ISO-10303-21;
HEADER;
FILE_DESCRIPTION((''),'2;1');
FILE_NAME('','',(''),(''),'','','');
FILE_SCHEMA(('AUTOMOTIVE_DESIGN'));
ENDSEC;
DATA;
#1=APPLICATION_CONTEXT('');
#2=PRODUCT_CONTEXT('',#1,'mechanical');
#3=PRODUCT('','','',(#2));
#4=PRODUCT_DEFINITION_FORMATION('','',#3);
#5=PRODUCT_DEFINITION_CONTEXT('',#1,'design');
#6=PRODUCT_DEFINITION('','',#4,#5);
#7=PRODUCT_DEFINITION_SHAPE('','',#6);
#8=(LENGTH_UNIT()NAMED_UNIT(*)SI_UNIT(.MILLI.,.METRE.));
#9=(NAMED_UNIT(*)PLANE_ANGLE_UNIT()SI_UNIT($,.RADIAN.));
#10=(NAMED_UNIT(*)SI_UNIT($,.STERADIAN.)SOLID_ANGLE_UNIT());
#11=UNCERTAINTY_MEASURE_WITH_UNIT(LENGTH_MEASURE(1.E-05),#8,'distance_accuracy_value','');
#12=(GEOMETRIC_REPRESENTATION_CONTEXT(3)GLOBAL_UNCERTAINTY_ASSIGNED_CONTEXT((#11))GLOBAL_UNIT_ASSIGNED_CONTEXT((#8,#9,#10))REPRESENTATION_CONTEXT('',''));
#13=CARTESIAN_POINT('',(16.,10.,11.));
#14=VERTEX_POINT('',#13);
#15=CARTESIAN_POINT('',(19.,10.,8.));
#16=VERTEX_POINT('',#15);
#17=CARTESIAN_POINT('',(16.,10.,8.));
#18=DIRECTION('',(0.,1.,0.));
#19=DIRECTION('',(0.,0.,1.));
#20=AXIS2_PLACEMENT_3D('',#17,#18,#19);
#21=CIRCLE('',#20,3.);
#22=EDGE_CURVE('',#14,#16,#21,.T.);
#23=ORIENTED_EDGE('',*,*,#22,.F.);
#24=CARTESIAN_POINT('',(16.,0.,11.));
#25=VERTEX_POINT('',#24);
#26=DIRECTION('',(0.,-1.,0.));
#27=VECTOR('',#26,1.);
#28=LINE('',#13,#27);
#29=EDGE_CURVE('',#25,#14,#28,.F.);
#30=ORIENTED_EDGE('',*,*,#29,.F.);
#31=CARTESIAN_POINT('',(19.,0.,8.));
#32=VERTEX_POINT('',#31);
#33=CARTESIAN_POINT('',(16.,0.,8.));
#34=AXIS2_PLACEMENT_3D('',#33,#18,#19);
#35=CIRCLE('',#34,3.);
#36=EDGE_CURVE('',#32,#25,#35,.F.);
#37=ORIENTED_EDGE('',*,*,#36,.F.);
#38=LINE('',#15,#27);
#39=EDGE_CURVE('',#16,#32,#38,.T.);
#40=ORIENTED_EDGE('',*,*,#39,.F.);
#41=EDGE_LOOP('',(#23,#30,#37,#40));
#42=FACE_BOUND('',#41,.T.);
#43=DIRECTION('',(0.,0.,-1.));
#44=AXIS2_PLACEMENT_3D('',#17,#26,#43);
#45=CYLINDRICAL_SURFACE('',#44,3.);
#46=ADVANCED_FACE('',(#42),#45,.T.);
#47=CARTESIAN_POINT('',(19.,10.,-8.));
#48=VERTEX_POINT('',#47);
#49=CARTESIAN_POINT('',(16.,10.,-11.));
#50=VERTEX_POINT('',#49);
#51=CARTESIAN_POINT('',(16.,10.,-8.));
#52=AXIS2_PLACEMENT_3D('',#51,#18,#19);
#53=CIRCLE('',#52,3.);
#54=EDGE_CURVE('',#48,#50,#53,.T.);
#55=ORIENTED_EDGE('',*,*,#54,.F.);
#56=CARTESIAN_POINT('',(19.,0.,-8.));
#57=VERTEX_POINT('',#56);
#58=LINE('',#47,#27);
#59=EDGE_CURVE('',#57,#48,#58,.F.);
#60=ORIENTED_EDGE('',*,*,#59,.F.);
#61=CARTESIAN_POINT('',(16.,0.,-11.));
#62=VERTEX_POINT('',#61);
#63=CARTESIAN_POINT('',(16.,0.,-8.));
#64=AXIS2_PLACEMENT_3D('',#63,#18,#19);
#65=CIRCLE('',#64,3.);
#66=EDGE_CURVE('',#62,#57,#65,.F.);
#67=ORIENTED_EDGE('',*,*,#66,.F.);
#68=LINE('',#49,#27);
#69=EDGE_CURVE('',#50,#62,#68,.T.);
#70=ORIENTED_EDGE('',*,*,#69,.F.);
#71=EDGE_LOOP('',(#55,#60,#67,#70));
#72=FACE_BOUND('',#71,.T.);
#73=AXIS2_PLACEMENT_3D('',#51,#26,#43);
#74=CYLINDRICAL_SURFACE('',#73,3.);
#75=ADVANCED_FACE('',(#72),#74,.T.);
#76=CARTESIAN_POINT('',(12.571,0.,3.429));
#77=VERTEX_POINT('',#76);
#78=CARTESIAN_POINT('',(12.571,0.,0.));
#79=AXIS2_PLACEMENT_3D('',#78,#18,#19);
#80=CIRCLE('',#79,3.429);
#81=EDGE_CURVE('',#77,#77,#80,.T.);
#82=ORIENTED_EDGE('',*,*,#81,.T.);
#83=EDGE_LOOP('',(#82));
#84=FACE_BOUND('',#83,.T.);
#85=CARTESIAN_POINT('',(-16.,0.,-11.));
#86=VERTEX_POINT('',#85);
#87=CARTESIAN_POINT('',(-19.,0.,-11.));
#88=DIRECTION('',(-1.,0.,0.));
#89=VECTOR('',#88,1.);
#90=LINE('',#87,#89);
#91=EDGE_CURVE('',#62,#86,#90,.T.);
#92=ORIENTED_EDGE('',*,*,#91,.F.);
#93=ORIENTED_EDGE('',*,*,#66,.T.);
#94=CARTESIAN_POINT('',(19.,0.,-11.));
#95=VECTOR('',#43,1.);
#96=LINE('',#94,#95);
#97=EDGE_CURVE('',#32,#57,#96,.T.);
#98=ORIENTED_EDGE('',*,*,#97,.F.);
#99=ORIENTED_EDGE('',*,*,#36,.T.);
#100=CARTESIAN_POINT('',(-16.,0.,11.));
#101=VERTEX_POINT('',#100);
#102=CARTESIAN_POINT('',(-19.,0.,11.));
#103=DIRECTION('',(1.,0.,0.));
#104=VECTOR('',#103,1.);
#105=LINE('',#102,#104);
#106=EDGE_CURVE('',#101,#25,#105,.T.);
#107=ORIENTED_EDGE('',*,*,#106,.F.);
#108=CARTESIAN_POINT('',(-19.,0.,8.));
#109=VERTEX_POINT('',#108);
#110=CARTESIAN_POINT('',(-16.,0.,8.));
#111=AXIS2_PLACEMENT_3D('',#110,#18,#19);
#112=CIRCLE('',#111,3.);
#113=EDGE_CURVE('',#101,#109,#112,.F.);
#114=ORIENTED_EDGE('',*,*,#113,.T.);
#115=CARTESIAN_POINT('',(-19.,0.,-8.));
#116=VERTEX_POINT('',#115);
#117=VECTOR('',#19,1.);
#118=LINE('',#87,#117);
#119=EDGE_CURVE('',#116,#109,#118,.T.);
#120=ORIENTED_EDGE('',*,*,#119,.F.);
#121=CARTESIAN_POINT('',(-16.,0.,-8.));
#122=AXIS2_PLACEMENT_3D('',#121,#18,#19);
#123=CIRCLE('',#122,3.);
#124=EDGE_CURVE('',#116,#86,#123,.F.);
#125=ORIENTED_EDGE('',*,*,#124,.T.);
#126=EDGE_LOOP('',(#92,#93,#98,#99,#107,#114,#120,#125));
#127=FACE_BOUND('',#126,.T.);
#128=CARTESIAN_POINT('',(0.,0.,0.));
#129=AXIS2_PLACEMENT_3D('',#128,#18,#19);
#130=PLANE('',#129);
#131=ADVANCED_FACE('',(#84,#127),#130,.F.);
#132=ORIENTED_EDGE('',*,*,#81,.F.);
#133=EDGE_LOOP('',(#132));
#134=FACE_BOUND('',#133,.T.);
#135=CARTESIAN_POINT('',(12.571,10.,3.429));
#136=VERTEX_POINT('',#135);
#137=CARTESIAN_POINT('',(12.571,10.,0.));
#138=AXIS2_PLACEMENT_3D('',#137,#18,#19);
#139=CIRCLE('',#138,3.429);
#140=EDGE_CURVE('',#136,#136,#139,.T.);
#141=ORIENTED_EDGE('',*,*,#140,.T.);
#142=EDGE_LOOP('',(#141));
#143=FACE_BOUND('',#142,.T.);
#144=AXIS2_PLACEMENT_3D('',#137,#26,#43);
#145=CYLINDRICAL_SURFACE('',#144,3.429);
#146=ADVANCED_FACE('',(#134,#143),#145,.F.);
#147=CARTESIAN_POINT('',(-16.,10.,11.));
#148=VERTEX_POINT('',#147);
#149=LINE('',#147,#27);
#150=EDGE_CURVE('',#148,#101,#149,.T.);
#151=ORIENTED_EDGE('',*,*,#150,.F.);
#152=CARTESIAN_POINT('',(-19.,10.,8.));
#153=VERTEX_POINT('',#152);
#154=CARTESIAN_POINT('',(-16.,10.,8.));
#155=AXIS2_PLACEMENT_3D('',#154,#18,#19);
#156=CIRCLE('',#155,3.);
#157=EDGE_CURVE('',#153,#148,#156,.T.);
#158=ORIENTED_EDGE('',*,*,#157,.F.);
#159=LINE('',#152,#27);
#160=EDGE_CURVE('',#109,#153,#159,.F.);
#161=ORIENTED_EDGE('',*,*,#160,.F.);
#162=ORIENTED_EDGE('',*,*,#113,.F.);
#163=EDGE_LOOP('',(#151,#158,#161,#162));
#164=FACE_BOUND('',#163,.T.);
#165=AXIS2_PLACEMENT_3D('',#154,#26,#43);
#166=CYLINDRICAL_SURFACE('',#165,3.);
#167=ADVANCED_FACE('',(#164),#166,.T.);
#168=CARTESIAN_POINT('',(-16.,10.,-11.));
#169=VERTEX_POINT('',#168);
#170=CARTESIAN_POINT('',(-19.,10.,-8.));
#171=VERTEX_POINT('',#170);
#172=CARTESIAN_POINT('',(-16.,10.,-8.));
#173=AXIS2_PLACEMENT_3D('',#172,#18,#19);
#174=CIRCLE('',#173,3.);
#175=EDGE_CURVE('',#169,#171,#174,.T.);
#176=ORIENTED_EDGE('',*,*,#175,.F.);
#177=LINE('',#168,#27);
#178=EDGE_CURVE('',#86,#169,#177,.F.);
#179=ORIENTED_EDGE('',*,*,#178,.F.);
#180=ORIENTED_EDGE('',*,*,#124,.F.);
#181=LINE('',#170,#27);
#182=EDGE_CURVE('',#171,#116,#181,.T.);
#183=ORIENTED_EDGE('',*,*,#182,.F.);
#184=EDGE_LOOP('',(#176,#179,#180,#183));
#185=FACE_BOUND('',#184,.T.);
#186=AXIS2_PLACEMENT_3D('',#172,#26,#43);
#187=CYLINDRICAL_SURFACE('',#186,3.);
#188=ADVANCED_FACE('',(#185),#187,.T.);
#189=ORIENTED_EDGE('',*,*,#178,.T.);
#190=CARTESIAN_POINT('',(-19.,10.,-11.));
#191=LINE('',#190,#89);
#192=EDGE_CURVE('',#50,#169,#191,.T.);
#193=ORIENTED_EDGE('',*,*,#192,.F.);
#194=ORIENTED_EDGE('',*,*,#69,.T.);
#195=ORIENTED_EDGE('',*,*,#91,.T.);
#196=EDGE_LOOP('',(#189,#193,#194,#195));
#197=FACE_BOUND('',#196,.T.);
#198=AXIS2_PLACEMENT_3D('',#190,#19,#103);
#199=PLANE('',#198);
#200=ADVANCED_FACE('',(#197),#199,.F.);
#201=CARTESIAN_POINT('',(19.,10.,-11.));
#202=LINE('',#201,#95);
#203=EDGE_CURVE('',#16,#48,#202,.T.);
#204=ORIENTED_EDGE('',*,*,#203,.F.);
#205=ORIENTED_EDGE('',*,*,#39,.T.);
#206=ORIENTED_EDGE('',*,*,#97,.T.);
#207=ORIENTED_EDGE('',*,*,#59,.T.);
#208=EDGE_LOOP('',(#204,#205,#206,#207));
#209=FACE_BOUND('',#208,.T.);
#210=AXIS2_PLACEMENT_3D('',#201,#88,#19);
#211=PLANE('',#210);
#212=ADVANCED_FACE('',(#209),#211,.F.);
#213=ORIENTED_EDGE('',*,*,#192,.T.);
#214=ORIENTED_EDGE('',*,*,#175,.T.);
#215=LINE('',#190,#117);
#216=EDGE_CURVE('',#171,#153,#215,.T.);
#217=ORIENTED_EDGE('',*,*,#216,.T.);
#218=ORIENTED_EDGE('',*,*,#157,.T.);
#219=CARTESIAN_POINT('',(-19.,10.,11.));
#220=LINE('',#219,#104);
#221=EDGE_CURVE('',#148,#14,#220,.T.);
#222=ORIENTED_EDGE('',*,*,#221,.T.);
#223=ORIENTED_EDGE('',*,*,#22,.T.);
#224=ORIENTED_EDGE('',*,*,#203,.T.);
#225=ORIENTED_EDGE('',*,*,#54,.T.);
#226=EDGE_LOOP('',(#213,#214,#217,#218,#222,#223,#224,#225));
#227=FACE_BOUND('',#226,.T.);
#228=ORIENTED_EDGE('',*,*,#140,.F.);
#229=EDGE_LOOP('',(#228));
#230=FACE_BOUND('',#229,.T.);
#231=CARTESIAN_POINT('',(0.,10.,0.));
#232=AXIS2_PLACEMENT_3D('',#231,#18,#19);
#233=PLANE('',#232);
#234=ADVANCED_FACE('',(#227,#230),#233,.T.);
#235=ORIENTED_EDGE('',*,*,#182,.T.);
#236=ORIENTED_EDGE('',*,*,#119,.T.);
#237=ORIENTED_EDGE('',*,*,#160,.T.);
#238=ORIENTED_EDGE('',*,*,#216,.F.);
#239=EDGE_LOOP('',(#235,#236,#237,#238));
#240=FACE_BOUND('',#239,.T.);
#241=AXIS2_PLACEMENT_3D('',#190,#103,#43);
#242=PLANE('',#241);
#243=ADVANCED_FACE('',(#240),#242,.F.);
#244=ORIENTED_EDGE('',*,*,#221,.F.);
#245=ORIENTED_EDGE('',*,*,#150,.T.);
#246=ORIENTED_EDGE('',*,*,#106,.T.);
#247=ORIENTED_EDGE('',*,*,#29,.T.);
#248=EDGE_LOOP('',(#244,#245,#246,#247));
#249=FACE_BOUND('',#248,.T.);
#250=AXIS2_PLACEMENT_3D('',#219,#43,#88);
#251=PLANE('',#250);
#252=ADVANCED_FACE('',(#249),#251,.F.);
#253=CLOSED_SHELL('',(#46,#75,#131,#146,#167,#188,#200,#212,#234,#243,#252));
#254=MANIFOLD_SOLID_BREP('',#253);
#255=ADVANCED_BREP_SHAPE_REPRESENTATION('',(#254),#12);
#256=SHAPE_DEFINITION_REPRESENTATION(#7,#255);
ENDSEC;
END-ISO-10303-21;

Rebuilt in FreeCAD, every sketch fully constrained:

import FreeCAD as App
import Part
import Sketcher
Q = App.Units.Quantity


def edges_at(feature, points):
    """Names of the edges that pass closest to the given points."""
    edges = feature.Shape.Edges
    near = lambda p: min(range(len(edges)), key=lambda i: edges[i].distToShape(Part.Vertex(*p))[0])
    return sorted({f"Edge{near(p) + 1}" for p in points})


def add_polygon(sketch, points):
    """Adds a closed chain of lines whose ends are joined by coincident constraints."""
    first, n = sketch.GeometryCount, len(points)
    for a, b in zip(points, points[1:] + points[:1]):
        sketch.addGeometry(Part.LineSegment(App.Vector(*a, 0), App.Vector(*b, 0)), False)
    for i in range(n):
        sketch.addConstraint(Sketcher.Constraint("Coincident", first + i, 2, first + (i + 1) % n, 1))

doc = App.newDocument("Part")
body = doc.addObject("PartDesign::Body", "Body")

sketch1 = doc.addObject("Sketcher::SketchObject", "Sketch")
body.addObject(sketch1)
sketch1.AttachmentSupport = (doc.XZ_Plane, [""])
sketch1.MapMode = "FlatFace"
add_polygon(sketch1, [(-19, -11), (-19, 11), (19, 11), (19, -11)])
sketch1.addGeometry(Part.Circle(App.Vector(12.6, 0, 0), App.Vector(0, 0, 1), 3.4), False)
sketch1.addConstraint(Sketcher.Constraint("Vertical", 0))
sketch1.addConstraint(Sketcher.Constraint("Horizontal", 1))
sketch1.addConstraint(Sketcher.Constraint("Vertical", 2))
sketch1.addConstraint(Sketcher.Constraint("Horizontal", 3))
sketch1.addConstraint(Sketcher.Constraint("Symmetric", 0, 2, 2, 2, -1, 1))
sketch1.addConstraint(Sketcher.Constraint("PointOnObject", 4, 3, -1))
sketch1.addConstraint(Sketcher.Constraint("DistanceX", 1, 1, 1, 2, Q("38 mm")))
sketch1.addConstraint(Sketcher.Constraint("DistanceY", 0, 1, 0, 2, Q("22 mm")))
sketch1.addConstraint(Sketcher.Constraint("Diameter", 4, Q("6.858 mm")))
sketch1.addConstraint(Sketcher.Constraint("DistanceX", -1, 1, 4, 3, Q("12.571 mm")))
pad1 = doc.addObject("PartDesign::Pad", "Pad")
body.addObject(pad1)
pad1.Profile = sketch1
pad1.Length = 10
pad1.Reversed = True
doc.recompute()

fillet = doc.addObject("PartDesign::Fillet", "Fillet")
body.addObject(fillet)
fillet.Base = (pad1, edges_at(pad1, [
    (19, 5, 11),
    (-19, 5, 11),
    (-19, 5, -11),
    (19, 5, -11),
]))
fillet.Radius = 3

doc.recompute()
